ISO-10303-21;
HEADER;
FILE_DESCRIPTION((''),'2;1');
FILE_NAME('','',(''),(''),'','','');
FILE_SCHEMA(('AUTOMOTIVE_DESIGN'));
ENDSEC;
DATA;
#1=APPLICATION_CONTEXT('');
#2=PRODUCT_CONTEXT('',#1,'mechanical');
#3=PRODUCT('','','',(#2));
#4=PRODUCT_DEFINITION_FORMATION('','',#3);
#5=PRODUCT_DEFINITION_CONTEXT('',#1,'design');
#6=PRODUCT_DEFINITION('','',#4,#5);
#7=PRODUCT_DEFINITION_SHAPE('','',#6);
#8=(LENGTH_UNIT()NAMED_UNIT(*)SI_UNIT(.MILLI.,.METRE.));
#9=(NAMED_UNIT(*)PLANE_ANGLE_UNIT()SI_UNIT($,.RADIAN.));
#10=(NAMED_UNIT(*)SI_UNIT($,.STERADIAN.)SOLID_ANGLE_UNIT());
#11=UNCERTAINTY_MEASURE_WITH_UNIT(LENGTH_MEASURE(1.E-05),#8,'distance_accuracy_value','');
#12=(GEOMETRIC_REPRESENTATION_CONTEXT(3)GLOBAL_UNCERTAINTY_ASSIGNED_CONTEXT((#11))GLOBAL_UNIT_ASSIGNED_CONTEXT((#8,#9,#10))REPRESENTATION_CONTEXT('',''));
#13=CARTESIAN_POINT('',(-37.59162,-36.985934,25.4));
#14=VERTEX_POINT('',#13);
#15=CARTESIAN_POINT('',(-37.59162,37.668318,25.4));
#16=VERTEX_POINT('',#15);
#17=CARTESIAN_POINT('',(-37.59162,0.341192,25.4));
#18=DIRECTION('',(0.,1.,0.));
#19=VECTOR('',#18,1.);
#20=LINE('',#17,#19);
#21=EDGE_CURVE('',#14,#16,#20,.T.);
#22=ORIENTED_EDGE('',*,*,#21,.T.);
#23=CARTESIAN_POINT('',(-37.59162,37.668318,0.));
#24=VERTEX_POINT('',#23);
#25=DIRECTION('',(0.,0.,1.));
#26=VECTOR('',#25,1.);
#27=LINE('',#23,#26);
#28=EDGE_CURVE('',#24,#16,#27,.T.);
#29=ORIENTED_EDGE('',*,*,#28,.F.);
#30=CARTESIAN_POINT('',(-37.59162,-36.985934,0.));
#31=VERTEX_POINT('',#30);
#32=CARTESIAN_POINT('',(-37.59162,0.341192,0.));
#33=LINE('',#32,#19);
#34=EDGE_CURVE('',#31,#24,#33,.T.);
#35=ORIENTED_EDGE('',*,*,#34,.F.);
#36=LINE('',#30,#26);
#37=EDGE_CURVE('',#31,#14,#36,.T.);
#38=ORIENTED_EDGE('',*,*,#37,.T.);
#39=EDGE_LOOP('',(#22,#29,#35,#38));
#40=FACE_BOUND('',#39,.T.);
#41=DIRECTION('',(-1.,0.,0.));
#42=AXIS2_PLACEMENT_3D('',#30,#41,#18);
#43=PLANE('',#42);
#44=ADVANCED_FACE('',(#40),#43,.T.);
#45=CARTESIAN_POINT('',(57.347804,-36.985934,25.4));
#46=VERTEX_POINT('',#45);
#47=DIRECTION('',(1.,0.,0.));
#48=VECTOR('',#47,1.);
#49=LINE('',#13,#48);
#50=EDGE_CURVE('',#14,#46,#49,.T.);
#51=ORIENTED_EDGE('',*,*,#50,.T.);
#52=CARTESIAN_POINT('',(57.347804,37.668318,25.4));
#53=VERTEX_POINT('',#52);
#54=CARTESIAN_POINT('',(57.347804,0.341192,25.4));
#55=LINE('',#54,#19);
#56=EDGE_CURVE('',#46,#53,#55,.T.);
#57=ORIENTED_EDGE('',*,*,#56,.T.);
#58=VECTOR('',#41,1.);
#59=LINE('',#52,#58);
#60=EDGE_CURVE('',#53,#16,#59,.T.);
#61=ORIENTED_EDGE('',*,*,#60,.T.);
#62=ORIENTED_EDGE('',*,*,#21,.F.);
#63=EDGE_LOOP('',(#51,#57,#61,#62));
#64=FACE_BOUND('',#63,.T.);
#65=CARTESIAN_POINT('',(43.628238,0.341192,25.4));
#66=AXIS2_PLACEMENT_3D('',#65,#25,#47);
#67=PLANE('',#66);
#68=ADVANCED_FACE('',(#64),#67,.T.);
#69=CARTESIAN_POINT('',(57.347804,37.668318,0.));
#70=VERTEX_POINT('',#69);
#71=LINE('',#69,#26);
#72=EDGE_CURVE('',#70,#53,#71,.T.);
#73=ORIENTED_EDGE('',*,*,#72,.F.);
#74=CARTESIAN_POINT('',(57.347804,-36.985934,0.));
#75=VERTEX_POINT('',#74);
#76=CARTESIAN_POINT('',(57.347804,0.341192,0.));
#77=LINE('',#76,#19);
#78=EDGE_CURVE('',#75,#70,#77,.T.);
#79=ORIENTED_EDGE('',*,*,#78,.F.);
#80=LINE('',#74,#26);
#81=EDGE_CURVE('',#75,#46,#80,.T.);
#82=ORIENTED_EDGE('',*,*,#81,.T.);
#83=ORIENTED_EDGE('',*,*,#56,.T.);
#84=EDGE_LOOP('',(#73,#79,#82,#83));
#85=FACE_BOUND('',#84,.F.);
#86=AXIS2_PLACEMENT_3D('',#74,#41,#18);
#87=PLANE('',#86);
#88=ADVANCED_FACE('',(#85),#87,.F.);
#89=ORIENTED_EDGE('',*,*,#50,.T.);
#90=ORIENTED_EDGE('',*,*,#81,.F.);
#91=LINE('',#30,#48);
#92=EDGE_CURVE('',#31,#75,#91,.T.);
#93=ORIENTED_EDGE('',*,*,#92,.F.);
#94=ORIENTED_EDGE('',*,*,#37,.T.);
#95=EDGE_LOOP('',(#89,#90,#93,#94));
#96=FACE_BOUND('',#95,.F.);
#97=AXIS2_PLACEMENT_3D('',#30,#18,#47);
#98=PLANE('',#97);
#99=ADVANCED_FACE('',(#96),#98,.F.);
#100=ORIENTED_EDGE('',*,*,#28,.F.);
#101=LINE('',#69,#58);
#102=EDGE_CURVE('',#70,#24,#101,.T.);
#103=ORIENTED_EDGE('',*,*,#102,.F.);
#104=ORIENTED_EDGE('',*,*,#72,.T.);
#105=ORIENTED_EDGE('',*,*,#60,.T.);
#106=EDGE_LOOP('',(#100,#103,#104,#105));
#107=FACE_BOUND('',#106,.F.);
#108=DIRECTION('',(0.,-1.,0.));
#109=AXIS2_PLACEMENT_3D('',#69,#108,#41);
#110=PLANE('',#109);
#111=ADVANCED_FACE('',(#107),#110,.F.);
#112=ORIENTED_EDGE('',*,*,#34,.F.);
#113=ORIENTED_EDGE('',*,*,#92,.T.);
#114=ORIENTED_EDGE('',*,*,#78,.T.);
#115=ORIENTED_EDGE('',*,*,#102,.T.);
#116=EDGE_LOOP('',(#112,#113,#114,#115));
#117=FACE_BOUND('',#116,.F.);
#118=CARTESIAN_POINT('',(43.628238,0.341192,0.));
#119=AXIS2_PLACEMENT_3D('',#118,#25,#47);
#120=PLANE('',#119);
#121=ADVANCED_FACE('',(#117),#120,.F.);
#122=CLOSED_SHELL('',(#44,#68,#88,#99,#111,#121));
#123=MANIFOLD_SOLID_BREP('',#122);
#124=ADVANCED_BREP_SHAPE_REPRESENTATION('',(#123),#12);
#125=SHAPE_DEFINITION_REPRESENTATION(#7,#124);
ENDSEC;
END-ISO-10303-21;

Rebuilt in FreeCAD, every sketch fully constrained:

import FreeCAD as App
import Part
import Sketcher
from FreeCAD import Vector
Q = App.Units.Quantity

doc = App.newDocument("Part")
body = doc.addObject("PartDesign::Body", "Body")

# Sketch on XY plane
sketch1 = body.newObject("Sketcher::SketchObject", "Sketch")
sketch1.AttachmentSupport = (doc.getObject("XY_Plane"), [""])
sketch1.MapMode = "FlatFace"
sketch1.addGeometry(Part.LineSegment(Vector(57, -37, 0), Vector(57, 38, 0)), False)
sketch1.addGeometry(Part.LineSegment(Vector(57, 38, 0), Vector(-38, 38, 0)), False)
sketch1.addGeometry(Part.LineSegment(Vector(-38, 38, 0), Vector(-38, -37, 0)), False)
sketch1.addGeometry(Part.LineSegment(Vector(-38, -37, 0), Vector(57, -37, 0)), False)
sketch1.addConstraint(Sketcher.Constraint("Coincident", 0, 2, 1, 1))
sketch1.addConstraint(Sketcher.Constraint("Coincident", 1, 2, 2, 1))
sketch1.addConstraint(Sketcher.Constraint("Coincident", 2, 2, 3, 1))
sketch1.addConstraint(Sketcher.Constraint("Coincident", 3, 2, 0, 1))
sketch1.addConstraint(Sketcher.Constraint("Vertical", 0))
sketch1.addConstraint(Sketcher.Constraint("Horizontal", 1))
sketch1.addConstraint(Sketcher.Constraint("Vertical", 2))
sketch1.addConstraint(Sketcher.Constraint("Horizontal", 3))
sketch1.addConstraint(Sketcher.Constraint("DistanceY", 0, 1, 0, 2, 74.654252))
sketch1.addConstraint(Sketcher.Constraint("DistanceX", 1, 2, 1, 1, 94.939425))
sketch1.addConstraint(Sketcher.Constraint("DistanceX", 1, 2, -1, 1, 37.59162))
sketch1.addConstraint(Sketcher.Constraint("DistanceY", -1, 1, 0, 2, 37.668318))
pad1 = body.newObject("PartDesign::Pad", "Pad")
pad1.Profile = sketch1
pad1.Length = Q("1 in")

doc.recompute()
